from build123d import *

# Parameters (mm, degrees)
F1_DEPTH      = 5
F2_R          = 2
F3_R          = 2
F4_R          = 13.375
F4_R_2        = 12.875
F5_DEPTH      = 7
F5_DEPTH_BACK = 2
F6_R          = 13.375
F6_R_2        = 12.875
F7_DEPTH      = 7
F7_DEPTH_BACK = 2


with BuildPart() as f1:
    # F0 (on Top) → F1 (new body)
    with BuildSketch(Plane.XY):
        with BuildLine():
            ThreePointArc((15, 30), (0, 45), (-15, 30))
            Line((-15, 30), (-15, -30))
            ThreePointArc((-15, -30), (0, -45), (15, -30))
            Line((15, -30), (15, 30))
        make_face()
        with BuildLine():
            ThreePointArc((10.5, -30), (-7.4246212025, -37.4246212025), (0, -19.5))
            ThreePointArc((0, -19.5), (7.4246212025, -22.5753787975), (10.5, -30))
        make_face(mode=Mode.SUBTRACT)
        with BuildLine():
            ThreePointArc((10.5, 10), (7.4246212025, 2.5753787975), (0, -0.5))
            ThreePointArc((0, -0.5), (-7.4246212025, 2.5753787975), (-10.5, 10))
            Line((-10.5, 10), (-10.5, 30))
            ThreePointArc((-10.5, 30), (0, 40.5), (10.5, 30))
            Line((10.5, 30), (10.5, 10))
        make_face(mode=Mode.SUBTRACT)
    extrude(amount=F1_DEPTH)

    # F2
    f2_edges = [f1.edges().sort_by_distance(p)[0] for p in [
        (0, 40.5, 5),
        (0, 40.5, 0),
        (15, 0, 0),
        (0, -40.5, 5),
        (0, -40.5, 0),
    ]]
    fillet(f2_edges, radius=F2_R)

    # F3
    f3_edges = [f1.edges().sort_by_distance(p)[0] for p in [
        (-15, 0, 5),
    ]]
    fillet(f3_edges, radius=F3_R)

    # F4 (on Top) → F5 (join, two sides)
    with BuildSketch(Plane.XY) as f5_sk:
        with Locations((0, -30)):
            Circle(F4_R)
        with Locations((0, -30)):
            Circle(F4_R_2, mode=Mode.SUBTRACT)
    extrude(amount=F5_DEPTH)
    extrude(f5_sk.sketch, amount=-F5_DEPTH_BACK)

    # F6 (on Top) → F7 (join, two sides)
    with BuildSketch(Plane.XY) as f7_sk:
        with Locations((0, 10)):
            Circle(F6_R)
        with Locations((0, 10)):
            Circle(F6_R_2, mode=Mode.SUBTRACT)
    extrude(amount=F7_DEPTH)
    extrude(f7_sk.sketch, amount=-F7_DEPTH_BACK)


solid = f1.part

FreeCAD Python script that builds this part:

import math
import FreeCAD as App
import Part
import Sketcher

V = App.Vector
Q = App.Units.Quantity


def edges_at(feature, points):
    """Names of the edges that pass closest to the given points."""
    edges = feature.Shape.Edges
    near = lambda p: min(range(len(edges)), key=lambda i: edges[i].distToShape(Part.Vertex(*p))[0])
    return sorted({f"Edge{near(p) + 1}" for p in points})

doc = App.newDocument("Part")
body = doc.addObject("PartDesign::Body", "Body")

# Sketch on XY plane
sketch1 = doc.addObject("Sketcher::SketchObject", "Sketch")
body.addObject(sketch1)
sketch1.AttachmentSupport = (doc.XY_Plane, [""])
sketch1.MapMode = "FlatFace"
sketch1.addGeometry([
    Part.ArcOfCircle(Part.Circle(V(0, 30, 0), V(0, 0, 1), 15), math.radians(0), math.radians(180)),  # 0
    Part.LineSegment(V(-15, 30, 0), V(-15, -30, 0)),  # 1
    Part.ArcOfCircle(Part.Circle(V(0, -30, 0), V(0, 0, 1), 15), math.radians(180), math.radians(360)),  # 2
    Part.LineSegment(V(15, -30, 0), V(15, 30, 0)),  # 3
    Part.ArcOfCircle(Part.Circle(V(0, -30, 0), V(0, 0, 1), 10.5), math.radians(0), math.radians(90)),  # 4
    Part.ArcOfCircle(Part.Circle(V(0, -30, 0), V(0, 0, 1), 10.5), math.radians(90), math.radians(360)),  # 5
    Part.LineSegment(V(10.5, 30, 0), V(10.5, 10, 0)),  # 6
    Part.ArcOfCircle(Part.Circle(V(0, 10, 0), V(0, 0, 1), 10.5), math.radians(-90), math.radians(0)),  # 7
    Part.ArcOfCircle(Part.Circle(V(0, 10, 0), V(0, 0, 1), 10.5), math.radians(180), math.radians(270)),  # 8
    Part.LineSegment(V(-10.5, 10, 0), V(-10.5, 30, 0)),  # 9
    Part.ArcOfCircle(Part.Circle(V(0, 30, 0), V(0, 0, 1), 10.5), math.radians(0), math.radians(180)),  # 10
], False)
sketch1.addConstraint([
    Sketcher.Constraint("Tangent", 0, 2, 1, 1),
    Sketcher.Constraint("Tangent", 1, 2, 2, 1),
    Sketcher.Constraint("Tangent", 2, 2, 3, 1),
    Sketcher.Constraint("Tangent", 3, 2, 0, 1),
    Sketcher.Constraint("Tangent", 4, 1, 5, 2),
    Sketcher.Constraint("Coincident", 5, 1, 4, 2),
    Sketcher.Constraint("Tangent", 6, 2, 7, 2),
    Sketcher.Constraint("Tangent", 7, 1, 8, 2),
    Sketcher.Constraint("Tangent", 8, 1, 9, 1),
    Sketcher.Constraint("Tangent", 9, 2, 10, 2),
    Sketcher.Constraint("Tangent", 10, 1, 6, 1),
    Sketcher.Constraint("Vertical", 1),
    Sketcher.Constraint("Vertical", 3),
    Sketcher.Constraint("Vertical", 6),
    Sketcher.Constraint("Vertical", 9),
    Sketcher.Constraint("Coincident", 4, 3, 2, 3),
    Sketcher.Constraint("Coincident", 10, 3, 0, 3),
    Sketcher.Constraint("Equal", 5, 7),
    Sketcher.Constraint("Equal", 7, 8),
    Sketcher.Constraint("Symmetric", 0, 3, 2, 3, -1, 1),
    Sketcher.Constraint("PointOnObject", 5, 1, -2),
    Sketcher.Constraint("PointOnObject", 7, 1, -2),
    Sketcher.Constraint("Horizontal", 2, 2, 4, 1),
    Sketcher.Constraint("Radius", 0, Q("15 mm")),
    Sketcher.Constraint("Radius", 4, Q("10.5 mm")),
    Sketcher.Constraint("DistanceY", 1, 2, 1, 1, Q("60 mm")),
    Sketcher.Constraint("DistanceY", 6, 2, 6, 1, Q("20 mm")),
])
pad1 = doc.addObject("PartDesign::Pad", "Pad")
body.addObject(pad1)
pad1.Profile = sketch1
pad1.Length = 5
doc.recompute()

fillet = doc.addObject("PartDesign::Fillet", "Fillet")
body.addObject(fillet)
fillet.Base = (pad1, edges_at(pad1, [
    (0, 40.5, 5),
    (0, 40.5, 0),
    (15, 0, 0),
    (-7.425, -37.425, 5),
    (-7.425, -37.425, 0),
]))
fillet.Radius = 2
doc.recompute()

fillet2 = doc.addObject("PartDesign::Fillet", "Fillet001")
body.addObject(fillet2)
fillet2.Base = (fillet, edges_at(fillet, [(-15, 0, 5)]))
fillet2.Radius = 2

# Sketch on XY plane
sketch2 = doc.addObject("Sketcher::SketchObject", "Sketch001")
body.addObject(sketch2)
sketch2.AttachmentSupport = (doc.XY_Plane, [""])
sketch2.MapMode = "FlatFace"
sketch2.addGeometry([
    Part.Circle(V(0, -30, 0), V(0, 0, 1), 13.375),
    Part.Circle(V(0, -30, 0), V(0, 0, 1), 12.875),
], False)
sketch2.addConstraint([
    Sketcher.Constraint("Coincident", 1, 3, 0, 3),
    Sketcher.Constraint("PointOnObject", 0, 3, -2),
    Sketcher.Constraint("Diameter", 0, Q("26.75 mm")),
    Sketcher.Constraint("Diameter", 1, Q("25.75 mm")),
    Sketcher.Constraint("DistanceY", 0, 3, -1, 1, Q("30 mm")),
])
pad2 = doc.addObject("PartDesign::Pad", "Pad001")
body.addObject(pad2)
pad2.Profile = sketch2
pad2.Type = "TwoLengths"
pad2.Length = 7
pad2.Length2 = 2

# Sketch on XY plane
sketch3 = doc.addObject("Sketcher::SketchObject", "Sketch002")
body.addObject(sketch3)
sketch3.AttachmentSupport = (doc.XY_Plane, [""])
sketch3.MapMode = "FlatFace"
sketch3.addGeometry([
    Part.Circle(V(0, 10, 0), V(0, 0, 1), 13.375),
    Part.Circle(V(0, 10, 0), V(0, 0, 1), 12.875),
], False)
sketch3.addConstraint([
    Sketcher.Constraint("Coincident", 1, 3, 0, 3),
    Sketcher.Constraint("PointOnObject", 0, 3, -2),
    Sketcher.Constraint("Diameter", 0, Q("26.75 mm")),
    Sketcher.Constraint("Diameter", 1, Q("25.75 mm")),
    Sketcher.Constraint("DistanceY", -1, 1, 0, 3, Q("10 mm")),
])
pad3 = doc.addObject("PartDesign::Pad", "Pad002")
body.addObject(pad3)
pad3.Profile = sketch3
pad3.Type = "TwoLengths"
pad3.Length = 7
pad3.Length2 = 2

doc.recompute()
